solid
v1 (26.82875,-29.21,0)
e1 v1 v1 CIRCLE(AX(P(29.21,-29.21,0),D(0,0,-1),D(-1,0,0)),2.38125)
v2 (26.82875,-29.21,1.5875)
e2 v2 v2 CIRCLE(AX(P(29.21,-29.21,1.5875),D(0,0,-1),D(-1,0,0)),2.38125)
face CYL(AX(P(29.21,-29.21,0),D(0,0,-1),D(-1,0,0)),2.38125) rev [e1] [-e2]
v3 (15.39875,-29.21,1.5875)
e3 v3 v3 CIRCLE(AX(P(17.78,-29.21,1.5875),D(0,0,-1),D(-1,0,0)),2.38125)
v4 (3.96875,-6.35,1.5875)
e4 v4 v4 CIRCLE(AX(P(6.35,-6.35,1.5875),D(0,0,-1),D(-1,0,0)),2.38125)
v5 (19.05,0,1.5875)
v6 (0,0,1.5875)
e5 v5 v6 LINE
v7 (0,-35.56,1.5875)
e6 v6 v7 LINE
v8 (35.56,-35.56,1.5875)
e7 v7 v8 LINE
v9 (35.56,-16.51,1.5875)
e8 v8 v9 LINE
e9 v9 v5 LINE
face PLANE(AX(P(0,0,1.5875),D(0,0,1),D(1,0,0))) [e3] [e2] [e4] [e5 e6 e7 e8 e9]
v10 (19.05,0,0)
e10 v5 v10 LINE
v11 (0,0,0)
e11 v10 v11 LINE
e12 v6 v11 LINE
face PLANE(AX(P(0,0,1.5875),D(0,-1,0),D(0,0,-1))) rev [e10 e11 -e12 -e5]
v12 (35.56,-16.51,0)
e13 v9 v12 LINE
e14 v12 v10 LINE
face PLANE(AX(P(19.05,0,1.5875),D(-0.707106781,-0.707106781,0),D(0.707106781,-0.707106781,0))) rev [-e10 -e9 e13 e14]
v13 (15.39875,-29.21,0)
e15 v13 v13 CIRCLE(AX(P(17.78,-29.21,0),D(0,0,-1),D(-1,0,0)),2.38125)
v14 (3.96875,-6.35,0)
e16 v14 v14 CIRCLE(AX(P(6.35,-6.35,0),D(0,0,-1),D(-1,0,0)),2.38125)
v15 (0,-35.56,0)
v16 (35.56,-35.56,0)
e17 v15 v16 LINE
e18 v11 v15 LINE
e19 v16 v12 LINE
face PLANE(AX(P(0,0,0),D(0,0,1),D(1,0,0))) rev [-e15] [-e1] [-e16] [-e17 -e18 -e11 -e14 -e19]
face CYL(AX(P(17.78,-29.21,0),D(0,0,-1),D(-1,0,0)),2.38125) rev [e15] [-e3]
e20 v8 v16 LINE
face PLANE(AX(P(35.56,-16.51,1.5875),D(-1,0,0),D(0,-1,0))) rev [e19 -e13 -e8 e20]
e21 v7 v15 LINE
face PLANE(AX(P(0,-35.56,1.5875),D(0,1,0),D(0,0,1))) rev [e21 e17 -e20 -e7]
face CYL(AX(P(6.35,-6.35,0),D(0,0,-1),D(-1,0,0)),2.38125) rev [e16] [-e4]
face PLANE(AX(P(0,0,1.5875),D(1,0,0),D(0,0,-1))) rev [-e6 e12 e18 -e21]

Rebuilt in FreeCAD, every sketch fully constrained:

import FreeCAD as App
import Part
import Sketcher
from FreeCAD import Vector
Q = App.Units.Quantity


def add_polygon(sketch, points):
    """Adds a closed chain of lines whose ends are joined by coincident constraints."""
    first, n = sketch.GeometryCount, len(points)
    for a, b in zip(points, points[1:] + points[:1]):
        sketch.addGeometry(Part.LineSegment(App.Vector(*a, 0), App.Vector(*b, 0)), False)
    for i in range(n):
        sketch.addConstraint(Sketcher.Constraint("Coincident", first + i, 2, first + (i + 1) % n, 1))

doc = App.newDocument("Part")
body = doc.addObject("PartDesign::Body", "Body")

# Sketch on XY plane
sketch1 = body.newObject("Sketcher::SketchObject", "Sketch")
sketch1.AttachmentSupport = (doc.getObject("XY_Plane"), [""])
sketch1.MapMode = "FlatFace"
add_polygon(sketch1, [(36, -17), (19, 0), (0, 0), (0, -36), (36, -36)])  # lines 0-4
sketch1.addConstraint([
    Sketcher.Constraint("Horizontal", 1),
    Sketcher.Constraint("Vertical", 2),
    Sketcher.Constraint("Horizontal", 3),
    Sketcher.Constraint("Vertical", 4),
    Sketcher.Constraint("Coincident", 1, 2, -1, 1),
    Sketcher.Constraint("Equal", 3, 2),
    Sketcher.Constraint("Equal", 1, 4),
    Sketcher.Constraint("DistanceX", 3, 1, 3, 2, Q("1.4 in")),
    Sketcher.Constraint("DistanceX", 1, 2, 1, 1, Q("0.75 in")),
])
pad1 = body.newObject("PartDesign::Pad", "Pad")
pad1.Profile = sketch1
pad1.Length = Q("0.0625 in")

# Sketch on XY plane
sketch2 = body.newObject("Sketcher::SketchObject", "Sketch001")
sketch2.AttachmentSupport = (doc.getObject("XY_Plane"), [""])
sketch2.MapMode = "FlatFace"
sketch2.addGeometry([
    Part.Circle(Vector(6.3, -6.3, 0), Vector(0, 0, 1), 2.4),
    Part.Circle(Vector(17.8, -29.2, 0), Vector(0, 0, 1), 2.4),
    Part.Circle(Vector(29.2, -29.2, 0), Vector(0, 0, 1), 2.4),
], False)
sketch2.addConstraint([
    Sketcher.Constraint("Equal", 0, 1),
    Sketcher.Constraint("Equal", 1, 2),
    Sketcher.Constraint("Horizontal", 1, 3, 2, 3),
    Sketcher.Constraint("Diameter", 0, Q("0.1875 in")),
    Sketcher.Constraint("DistanceX", -1, 1, 1, 3, Q("0.7 in")),
    Sketcher.Constraint("DistanceY", 1, 3, 0, 3, Q("0.9 in")),
    Sketcher.Constraint("DistanceX", 0, 3, 2, 3, Q("0.9 in")),
    Sketcher.Constraint("DistanceX", -1, 1, 0, 3, Q("0.25 in")),
    Sketcher.Constraint("DistanceY", 0, 3, -1, 1, Q("0.25 in")),
])
doc.recompute()
hole = body.newObject("PartDesign::Hole", "Hole")
hole.Profile = sketch2
hole.ThreadType = "None"
hole.Diameter = Q("0.1875 in")
hole.DepthType = "ThroughAll"
hole.Reversed = True

doc.recompute()
